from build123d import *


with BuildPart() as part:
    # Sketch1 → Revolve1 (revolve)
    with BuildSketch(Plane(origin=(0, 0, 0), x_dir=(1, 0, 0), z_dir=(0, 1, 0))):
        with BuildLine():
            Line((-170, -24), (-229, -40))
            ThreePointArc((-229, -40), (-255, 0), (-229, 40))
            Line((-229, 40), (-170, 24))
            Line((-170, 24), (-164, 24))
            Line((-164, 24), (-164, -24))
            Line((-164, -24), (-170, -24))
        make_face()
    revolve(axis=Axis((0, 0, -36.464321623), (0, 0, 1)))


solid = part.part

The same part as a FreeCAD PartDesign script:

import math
import FreeCAD as App
import Part
import Sketcher

V = App.Vector

doc = App.newDocument("Part")
body = doc.addObject("PartDesign::Body", "Body")

# Sketch on XZ plane
sketch1 = doc.addObject("Sketcher::SketchObject", "Sketch")
body.addObject(sketch1)
sketch1.AttachmentSupport = (doc.XZ_Plane, [""])
sketch1.MapMode = "FlatFace"
sketch1.addGeometry([
    Part.LineSegment(V(-229, 40, 0), V(-170, 24, 0)),  # 0
    Part.LineSegment(V(-170, 24, 0), V(-164, 24, 0)),  # 1
    Part.LineSegment(V(-164, 24, 0), V(-164, -24, 0)),  # 2
    Part.LineSegment(V(-164, -24, 0), V(-170, -24, 0)),  # 3
    Part.LineSegment(V(-170, -24, 0), V(-229, -40, 0)),  # 4
    Part.ArcOfCircle(Part.Circle(V(-211, 0, 0), V(0, 0, 1), 44), math.radians(114), math.radians(246)),  # 5
], False)
sketch1.addConstraint([
    Sketcher.Constraint("Coincident", 0, 2, 1, 1),
    Sketcher.Constraint("Coincident", 1, 2, 2, 1),
    Sketcher.Constraint("Coincident", 2, 2, 3, 1),
    Sketcher.Constraint("Coincident", 3, 2, 4, 1),
    Sketcher.Constraint("Coincident", 4, 2, 5, 2),
    Sketcher.Constraint("Coincident", 5, 1, 0, 1),
    Sketcher.Constraint("Horizontal", 1),
    Sketcher.Constraint("Vertical", 2),
    Sketcher.Constraint("Horizontal", 3),
    Sketcher.Constraint("Symmetric", 0, 2, 3, 2, -1),
    Sketcher.Constraint("Symmetric", 4, 2, 5, 1, -1),
    Sketcher.Constraint("DistanceX", 1, 1, 1, 2, 6.0),
    Sketcher.Constraint("DistanceY", 2, 2, 2, 1, 48.0),
    Sketcher.Constraint("DistanceX", 0, 2, -1, 1, 170.0),
    Sketcher.Constraint("DistanceX", 4, 2, -1, 1, 229.0),
    Sketcher.Constraint("DistanceY", 4, 2, -1, 1, 40.0),
    Sketcher.Constraint("Radius", 5, 43.769231),
])
revolution = doc.addObject("PartDesign::Revolution", "Revolution")
body.addObject(revolution)
revolution.Profile = sketch1
revolution.ReferenceAxis = (sketch1, ["V_Axis"])
revolution.Angle = 360

doc.recompute()
